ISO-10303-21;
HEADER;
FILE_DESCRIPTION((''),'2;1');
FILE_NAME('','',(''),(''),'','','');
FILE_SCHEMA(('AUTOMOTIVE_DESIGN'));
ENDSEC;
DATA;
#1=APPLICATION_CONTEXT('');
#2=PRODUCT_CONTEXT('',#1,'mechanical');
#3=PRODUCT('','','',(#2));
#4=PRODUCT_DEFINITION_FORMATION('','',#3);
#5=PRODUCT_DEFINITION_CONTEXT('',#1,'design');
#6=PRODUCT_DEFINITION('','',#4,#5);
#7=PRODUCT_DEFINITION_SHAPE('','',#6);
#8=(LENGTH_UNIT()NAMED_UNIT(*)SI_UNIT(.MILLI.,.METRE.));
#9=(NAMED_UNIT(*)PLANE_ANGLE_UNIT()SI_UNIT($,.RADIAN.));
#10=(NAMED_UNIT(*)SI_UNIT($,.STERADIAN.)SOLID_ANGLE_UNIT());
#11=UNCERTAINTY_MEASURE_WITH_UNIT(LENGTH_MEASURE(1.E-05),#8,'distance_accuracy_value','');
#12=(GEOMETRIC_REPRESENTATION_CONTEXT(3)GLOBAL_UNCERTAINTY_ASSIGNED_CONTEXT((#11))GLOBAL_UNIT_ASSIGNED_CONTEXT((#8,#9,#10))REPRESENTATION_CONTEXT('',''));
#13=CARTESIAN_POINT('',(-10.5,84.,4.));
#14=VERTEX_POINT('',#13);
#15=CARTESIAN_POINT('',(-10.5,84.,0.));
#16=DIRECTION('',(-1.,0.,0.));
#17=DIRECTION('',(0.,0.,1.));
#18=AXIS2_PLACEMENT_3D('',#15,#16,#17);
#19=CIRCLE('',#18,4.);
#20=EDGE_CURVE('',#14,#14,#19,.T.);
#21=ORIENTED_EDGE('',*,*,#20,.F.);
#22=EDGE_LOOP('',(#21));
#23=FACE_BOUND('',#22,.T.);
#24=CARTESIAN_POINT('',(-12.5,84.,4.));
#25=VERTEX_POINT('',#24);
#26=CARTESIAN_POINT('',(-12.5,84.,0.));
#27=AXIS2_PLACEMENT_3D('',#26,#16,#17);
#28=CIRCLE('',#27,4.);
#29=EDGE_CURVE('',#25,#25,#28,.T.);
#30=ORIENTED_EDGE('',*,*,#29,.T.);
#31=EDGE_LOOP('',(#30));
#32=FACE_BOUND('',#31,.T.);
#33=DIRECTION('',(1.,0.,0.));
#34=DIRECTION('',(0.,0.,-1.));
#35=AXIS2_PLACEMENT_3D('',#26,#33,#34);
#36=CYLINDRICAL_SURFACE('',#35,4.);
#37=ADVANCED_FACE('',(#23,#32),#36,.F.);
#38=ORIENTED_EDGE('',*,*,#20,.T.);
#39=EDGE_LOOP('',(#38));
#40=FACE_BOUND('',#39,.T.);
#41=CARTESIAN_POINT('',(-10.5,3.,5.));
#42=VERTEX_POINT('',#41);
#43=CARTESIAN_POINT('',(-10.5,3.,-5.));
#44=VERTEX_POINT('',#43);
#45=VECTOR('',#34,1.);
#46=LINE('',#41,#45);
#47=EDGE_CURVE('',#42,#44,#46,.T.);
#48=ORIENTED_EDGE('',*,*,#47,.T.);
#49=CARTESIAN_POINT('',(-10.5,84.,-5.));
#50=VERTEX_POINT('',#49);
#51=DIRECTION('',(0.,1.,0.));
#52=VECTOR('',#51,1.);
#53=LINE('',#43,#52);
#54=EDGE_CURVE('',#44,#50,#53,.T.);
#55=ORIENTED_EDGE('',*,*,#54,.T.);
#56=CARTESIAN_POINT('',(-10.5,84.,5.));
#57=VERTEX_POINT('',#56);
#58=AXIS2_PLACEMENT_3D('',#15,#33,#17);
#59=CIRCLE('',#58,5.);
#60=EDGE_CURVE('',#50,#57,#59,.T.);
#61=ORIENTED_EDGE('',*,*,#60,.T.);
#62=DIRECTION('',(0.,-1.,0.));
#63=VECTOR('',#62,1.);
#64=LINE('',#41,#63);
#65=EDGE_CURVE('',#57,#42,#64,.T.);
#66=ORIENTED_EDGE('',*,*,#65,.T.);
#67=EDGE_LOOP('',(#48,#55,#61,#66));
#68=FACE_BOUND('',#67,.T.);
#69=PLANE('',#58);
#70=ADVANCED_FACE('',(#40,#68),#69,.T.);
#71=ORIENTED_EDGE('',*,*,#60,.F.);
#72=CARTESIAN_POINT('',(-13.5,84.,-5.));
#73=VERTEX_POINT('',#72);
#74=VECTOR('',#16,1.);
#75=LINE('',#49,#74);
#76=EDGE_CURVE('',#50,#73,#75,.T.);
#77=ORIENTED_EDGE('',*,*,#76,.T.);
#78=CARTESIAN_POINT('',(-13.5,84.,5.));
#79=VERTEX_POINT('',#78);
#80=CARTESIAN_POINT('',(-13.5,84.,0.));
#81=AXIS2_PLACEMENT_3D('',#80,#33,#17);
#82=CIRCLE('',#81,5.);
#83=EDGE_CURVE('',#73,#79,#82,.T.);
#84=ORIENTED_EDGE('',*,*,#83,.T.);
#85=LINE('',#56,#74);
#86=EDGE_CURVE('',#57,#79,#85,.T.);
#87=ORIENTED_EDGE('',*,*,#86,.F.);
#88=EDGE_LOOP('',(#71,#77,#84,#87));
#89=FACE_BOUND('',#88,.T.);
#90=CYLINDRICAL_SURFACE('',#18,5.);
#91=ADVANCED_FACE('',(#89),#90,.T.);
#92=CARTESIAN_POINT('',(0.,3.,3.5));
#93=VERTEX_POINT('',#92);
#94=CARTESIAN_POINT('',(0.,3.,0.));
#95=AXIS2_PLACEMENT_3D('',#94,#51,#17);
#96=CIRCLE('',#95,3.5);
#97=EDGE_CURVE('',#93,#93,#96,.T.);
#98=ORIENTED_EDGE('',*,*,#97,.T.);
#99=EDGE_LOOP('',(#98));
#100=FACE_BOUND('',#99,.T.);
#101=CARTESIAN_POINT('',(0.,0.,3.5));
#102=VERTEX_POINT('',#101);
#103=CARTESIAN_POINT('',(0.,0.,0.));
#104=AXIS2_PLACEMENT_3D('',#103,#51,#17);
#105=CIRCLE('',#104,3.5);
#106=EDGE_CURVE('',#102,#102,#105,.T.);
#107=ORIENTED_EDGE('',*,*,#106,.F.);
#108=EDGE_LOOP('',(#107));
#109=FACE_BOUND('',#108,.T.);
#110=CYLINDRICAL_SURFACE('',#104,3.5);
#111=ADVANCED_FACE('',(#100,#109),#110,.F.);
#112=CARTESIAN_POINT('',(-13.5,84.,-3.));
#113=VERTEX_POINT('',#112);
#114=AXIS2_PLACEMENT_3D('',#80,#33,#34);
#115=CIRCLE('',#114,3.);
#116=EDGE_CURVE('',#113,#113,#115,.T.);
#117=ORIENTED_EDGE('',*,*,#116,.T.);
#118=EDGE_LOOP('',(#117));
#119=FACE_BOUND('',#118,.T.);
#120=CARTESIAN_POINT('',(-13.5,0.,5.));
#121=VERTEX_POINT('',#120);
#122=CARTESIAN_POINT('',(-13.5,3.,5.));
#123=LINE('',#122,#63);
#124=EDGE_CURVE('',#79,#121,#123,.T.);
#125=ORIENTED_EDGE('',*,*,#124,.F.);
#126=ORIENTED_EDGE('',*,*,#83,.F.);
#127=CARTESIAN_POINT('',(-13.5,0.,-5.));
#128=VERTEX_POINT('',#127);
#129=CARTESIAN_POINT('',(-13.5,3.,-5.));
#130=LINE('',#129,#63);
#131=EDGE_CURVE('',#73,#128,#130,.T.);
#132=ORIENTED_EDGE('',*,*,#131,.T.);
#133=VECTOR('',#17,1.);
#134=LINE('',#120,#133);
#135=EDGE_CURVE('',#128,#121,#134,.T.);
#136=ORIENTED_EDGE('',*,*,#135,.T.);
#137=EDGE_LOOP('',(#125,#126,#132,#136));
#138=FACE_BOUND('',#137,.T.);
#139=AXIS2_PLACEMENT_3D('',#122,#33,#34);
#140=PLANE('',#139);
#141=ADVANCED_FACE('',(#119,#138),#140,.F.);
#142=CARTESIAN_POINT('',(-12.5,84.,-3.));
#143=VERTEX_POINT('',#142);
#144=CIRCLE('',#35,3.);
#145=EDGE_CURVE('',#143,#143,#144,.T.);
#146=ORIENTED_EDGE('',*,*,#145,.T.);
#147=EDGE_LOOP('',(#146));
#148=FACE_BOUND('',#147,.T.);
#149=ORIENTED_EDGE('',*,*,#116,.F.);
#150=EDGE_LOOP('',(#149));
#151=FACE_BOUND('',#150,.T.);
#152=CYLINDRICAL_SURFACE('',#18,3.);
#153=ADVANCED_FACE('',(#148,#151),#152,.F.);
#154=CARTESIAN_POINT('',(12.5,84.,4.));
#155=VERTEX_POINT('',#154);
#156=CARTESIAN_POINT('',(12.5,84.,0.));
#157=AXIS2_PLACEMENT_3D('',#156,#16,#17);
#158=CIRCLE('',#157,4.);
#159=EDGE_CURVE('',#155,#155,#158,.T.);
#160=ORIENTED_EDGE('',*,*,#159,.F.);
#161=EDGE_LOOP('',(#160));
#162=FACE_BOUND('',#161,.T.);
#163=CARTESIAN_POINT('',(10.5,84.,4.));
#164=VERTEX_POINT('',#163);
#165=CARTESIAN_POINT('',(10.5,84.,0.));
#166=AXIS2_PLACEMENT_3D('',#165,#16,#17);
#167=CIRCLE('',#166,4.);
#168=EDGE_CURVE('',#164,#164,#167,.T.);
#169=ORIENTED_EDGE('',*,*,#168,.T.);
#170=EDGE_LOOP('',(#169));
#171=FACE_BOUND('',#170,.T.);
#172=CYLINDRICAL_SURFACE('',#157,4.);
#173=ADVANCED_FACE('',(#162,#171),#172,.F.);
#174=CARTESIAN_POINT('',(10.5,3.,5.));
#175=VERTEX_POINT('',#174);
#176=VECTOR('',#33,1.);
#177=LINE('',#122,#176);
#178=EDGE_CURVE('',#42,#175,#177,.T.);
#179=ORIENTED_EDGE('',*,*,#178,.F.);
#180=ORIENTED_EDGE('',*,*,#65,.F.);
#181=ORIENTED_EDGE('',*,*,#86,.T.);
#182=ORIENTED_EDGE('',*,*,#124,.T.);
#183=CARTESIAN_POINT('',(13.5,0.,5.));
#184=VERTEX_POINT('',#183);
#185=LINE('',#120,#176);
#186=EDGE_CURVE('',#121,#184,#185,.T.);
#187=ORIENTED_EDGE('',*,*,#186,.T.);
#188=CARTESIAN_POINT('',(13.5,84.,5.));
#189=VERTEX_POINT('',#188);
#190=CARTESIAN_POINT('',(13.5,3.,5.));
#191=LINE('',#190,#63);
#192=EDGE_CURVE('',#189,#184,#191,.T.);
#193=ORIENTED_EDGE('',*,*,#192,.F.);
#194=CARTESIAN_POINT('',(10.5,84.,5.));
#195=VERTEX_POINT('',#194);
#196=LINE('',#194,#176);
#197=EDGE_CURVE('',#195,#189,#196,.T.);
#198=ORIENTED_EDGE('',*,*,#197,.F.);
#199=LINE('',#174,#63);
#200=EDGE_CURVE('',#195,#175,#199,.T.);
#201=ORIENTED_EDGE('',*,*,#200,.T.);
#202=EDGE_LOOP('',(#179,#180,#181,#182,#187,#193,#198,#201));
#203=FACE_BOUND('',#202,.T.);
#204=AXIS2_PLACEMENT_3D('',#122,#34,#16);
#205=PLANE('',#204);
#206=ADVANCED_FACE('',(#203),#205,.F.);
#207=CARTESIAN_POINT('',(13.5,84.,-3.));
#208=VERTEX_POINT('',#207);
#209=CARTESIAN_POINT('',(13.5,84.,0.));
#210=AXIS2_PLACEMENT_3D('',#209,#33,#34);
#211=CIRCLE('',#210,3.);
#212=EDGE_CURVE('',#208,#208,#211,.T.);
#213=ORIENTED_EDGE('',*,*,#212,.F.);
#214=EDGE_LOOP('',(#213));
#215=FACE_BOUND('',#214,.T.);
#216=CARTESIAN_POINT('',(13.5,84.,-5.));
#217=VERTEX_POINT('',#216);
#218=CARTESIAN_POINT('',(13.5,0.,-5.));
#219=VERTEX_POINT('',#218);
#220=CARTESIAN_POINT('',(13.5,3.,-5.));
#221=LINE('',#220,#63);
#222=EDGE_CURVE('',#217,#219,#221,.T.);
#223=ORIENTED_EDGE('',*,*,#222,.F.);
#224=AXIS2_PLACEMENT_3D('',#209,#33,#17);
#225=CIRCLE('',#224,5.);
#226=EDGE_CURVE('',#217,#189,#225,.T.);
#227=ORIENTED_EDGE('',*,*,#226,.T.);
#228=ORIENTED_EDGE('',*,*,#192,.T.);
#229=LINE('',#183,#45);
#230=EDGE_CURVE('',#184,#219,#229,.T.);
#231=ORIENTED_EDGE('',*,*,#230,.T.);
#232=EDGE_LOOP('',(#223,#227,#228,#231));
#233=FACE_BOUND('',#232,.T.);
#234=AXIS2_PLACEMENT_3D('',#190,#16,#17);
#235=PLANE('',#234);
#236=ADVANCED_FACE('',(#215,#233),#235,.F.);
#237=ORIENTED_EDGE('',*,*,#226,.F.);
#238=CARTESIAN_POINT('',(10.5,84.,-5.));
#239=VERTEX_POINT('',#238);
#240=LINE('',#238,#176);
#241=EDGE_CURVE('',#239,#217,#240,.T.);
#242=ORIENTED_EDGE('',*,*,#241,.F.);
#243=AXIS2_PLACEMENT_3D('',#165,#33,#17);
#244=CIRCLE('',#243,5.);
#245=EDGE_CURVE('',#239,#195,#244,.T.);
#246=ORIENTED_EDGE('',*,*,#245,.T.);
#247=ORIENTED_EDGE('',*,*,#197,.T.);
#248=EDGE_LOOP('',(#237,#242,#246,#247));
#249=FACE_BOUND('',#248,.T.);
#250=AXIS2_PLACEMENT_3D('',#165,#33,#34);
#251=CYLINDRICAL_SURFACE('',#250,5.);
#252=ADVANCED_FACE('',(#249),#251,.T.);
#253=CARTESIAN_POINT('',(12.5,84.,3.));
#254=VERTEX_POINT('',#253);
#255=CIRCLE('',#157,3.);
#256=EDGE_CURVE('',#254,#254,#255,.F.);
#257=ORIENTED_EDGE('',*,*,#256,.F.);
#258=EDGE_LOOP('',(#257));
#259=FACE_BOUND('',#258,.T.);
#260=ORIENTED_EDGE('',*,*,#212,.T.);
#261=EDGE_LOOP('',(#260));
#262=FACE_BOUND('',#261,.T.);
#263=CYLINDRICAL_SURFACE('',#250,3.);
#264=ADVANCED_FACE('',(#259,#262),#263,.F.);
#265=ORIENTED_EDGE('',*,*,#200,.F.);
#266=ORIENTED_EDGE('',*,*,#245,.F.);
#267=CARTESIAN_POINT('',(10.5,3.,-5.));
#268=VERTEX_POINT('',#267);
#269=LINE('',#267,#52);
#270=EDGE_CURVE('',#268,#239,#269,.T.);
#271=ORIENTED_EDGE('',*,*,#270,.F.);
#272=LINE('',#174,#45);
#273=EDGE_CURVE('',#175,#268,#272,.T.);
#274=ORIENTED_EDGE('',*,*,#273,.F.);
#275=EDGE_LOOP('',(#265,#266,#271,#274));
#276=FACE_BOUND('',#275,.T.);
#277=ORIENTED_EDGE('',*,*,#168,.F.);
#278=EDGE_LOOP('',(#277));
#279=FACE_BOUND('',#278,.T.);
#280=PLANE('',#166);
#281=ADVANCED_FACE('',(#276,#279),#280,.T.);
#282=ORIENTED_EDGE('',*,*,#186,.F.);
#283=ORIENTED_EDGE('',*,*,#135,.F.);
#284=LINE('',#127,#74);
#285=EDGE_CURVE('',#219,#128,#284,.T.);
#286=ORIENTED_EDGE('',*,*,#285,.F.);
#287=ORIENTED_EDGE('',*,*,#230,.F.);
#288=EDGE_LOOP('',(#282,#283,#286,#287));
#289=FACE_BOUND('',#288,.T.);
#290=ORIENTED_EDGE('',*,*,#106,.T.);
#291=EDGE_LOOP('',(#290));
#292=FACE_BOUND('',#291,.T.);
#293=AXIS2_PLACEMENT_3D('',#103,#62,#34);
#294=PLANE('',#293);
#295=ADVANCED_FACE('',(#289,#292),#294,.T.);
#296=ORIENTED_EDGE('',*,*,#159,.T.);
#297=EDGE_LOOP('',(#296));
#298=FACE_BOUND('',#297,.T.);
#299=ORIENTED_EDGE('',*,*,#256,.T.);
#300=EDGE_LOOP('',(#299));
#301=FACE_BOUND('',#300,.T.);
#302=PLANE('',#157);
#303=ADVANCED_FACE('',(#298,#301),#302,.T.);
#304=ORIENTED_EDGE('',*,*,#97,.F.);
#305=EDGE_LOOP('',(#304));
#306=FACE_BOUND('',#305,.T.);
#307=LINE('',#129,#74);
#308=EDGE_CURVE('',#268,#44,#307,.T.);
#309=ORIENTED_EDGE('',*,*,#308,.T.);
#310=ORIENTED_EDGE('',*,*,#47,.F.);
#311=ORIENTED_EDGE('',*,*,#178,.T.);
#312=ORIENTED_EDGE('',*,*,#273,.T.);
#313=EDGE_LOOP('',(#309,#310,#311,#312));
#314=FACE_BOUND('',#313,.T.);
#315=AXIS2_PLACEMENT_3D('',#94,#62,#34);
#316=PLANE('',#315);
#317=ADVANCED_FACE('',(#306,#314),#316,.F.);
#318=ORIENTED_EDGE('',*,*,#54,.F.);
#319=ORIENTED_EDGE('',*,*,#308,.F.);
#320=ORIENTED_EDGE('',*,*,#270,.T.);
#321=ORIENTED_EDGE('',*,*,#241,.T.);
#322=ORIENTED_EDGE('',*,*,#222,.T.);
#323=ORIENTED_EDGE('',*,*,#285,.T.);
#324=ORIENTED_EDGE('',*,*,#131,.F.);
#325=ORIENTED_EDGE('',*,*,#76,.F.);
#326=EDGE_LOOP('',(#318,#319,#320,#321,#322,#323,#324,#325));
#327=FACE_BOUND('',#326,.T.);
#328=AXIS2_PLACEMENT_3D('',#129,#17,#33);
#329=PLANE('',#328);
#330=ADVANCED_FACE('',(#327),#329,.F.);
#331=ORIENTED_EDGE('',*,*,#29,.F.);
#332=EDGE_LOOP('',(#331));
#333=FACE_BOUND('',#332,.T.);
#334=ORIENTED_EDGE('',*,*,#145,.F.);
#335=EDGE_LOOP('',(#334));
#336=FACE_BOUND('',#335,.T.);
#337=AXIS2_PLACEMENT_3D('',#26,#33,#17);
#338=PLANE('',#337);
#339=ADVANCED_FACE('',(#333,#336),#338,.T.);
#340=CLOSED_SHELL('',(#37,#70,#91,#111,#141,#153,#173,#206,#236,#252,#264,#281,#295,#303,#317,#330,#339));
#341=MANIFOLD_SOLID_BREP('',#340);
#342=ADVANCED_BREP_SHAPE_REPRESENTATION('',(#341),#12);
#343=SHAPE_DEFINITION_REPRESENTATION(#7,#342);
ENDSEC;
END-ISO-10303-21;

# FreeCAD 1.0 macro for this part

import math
import FreeCAD as App
import Part
import Sketcher

V = App.Vector

doc = App.newDocument("Part")
body = doc.addObject("PartDesign::Body", "Body")

# Sketch on XZ plane
sketch1 = body.newObject("Sketcher::SketchObject", "Sketch")
sketch1.AttachmentSupport = (doc.getObject("XZ_Plane"), [""])
sketch1.MapMode = "FlatFace"
sketch1.addGeometry(Part.LineSegment(V(-13.5, -5, 0), V(-13.5, 5, 0)), False)
sketch1.addGeometry(Part.LineSegment(V(-13.5, 5, 0), V(13.5, 5, 0)), False)
sketch1.addGeometry(Part.LineSegment(V(13.5, 5, 0), V(13.5, -5, 0)), False)
sketch1.addGeometry(Part.LineSegment(V(13.5, -5, 0), V(-13.5, -5, 0)), False)
sketch1.addConstraint(Sketcher.Constraint("Coincident", 0, 2, 1, 1))
sketch1.addConstraint(Sketcher.Constraint("Coincident", 1, 2, 2, 1))
sketch1.addConstraint(Sketcher.Constraint("Coincident", 2, 2, 3, 1))
sketch1.addConstraint(Sketcher.Constraint("Coincident", 3, 2, 0, 1))
sketch1.addConstraint(Sketcher.Constraint("Vertical", 0))
sketch1.addConstraint(Sketcher.Constraint("Horizontal", 1))
sketch1.addConstraint(Sketcher.Constraint("Vertical", 2))
sketch1.addConstraint(Sketcher.Constraint("Horizontal", 3))
sketch1.addConstraint(Sketcher.Constraint("Symmetric", 0, 2, 2, 2, -1, 1))
sketch1.addConstraint(Sketcher.Constraint("DistanceX", 1, 1, 1, 2, 27.0))
sketch1.addConstraint(Sketcher.Constraint("DistanceY", 0, 1, 0, 2, 10.0))
pad1 = body.newObject("PartDesign::Pad", "Pad")
pad1.Profile = sketch1
pad1.Length = 3
pad1.Reversed = True

# Sketch on YZ plane
sketch2 = body.newObject("Sketcher::SketchObject", "Sketch001")
sketch2.AttachmentSupport = (doc.getObject("YZ_Plane"), [""])
sketch2.MapMode = "FlatFace"
sketch2.AttachmentOffset = App.Placement(V(0, 0, 13.5), App.Rotation())
sketch2.addGeometry(Part.LineSegment(V(3, 5, 0), V(3, -5, 0)), False)
sketch2.addGeometry(Part.LineSegment(V(3, -5, 0), V(84, -5, 0)), False)
sketch2.addGeometry(Part.ArcOfCircle(Part.Circle(V(84, 0, 0), V(0, 0, 1), 5), math.radians(-90), math.radians(90)), False)
sketch2.addGeometry(Part.LineSegment(V(84, 5, 0), V(3, 5, 0)), False)
sketch2.addGeometry(Part.Circle(V(84, 0, 0), V(0, 0, 1), 3), False)
sketch2.addConstraint(Sketcher.Constraint("Coincident", 0, 2, 1, 1))
sketch2.addConstraint(Sketcher.Constraint("Tangent", 1, 2, 2, 1))
sketch2.addConstraint(Sketcher.Constraint("Tangent", 2, 2, 3, 1))
sketch2.addConstraint(Sketcher.Constraint("Coincident", 3, 2, 0, 1))
sketch2.addConstraint(Sketcher.Constraint("Vertical", 0))
sketch2.addConstraint(Sketcher.Constraint("Horizontal", 1))
sketch2.addConstraint(Sketcher.Constraint("Horizontal", 3))
sketch2.addConstraint(Sketcher.Constraint("Coincident", 4, 3, 2, 3))
sketch2.addConstraint(Sketcher.Constraint("PointOnObject", 2, 3, -1))
sketch2.addConstraint(Sketcher.Constraint("Diameter", 4, 6.0))
sketch2.addConstraint(Sketcher.Constraint("Radius", 2, 5.0))
sketch2.addConstraint(Sketcher.Constraint("DistanceX", 1, 1, 1, 2, 81.0))
sketch2.addConstraint(Sketcher.Constraint("DistanceX", -1, 1, 2, 3, 84.0))
pad2 = body.newObject("PartDesign::Pad", "Pad001")
pad2.Profile = sketch2
pad2.Length = 3
pad2.Reversed = True

# Sketch on XZ plane
sketch3 = body.newObject("Sketcher::SketchObject", "Sketch002")
sketch3.AttachmentSupport = (doc.getObject("XZ_Plane"), [""])
sketch3.MapMode = "FlatFace"
sketch3.AttachmentOffset = App.Placement(V(0, 0, -3), App.Rotation())
sketch3.addGeometry(Part.Circle(V(0, 0, 0), V(0, 0, 1), 1.5), False)
sketch3.addConstraint(Sketcher.Constraint("Coincident", 0, 3, -1, 1))
sketch3.addConstraint(Sketcher.Constraint("Diameter", 0, 3.0))
pocket1 = body.newObject("PartDesign::Pocket", "Pocket")
pocket1.Profile = sketch3
pocket1.Length = 3
pocket1.Reversed = True

# Sketch on YZ plane
sketch4 = body.newObject("Sketcher::SketchObject", "Sketch003")
sketch4.AttachmentSupport = (doc.getObject("YZ_Plane"), [""])
sketch4.MapMode = "FlatFace"
sketch4.AttachmentOffset = App.Placement(V(0, 0, 10.5), App.Rotation())
sketch4.addGeometry(Part.Circle(V(84, 0, 0), V(0, 0, 1), 4), False)
sketch4.addConstraint(Sketcher.Constraint("PointOnObject", 0, 3, -1))
sketch4.addConstraint(Sketcher.Constraint("Diameter", 0, 8.0))
sketch4.addConstraint(Sketcher.Constraint("DistanceX", -1, 1, 0, 3, 84.0))
pocket2 = body.newObject("PartDesign::Pocket", "Pocket001")
pocket2.Profile = sketch4
pocket2.Length = 2
pocket2.Reversed = True
doc.recompute()

mirrored = body.newObject("PartDesign::Mirrored", "Mirrored")
mirrored.Originals = [pad1, pad2, pocket2]
mirrored.MirrorPlane = (doc.getObject("YZ_Plane"), [""])
body.Tip = mirrored

# Sketch on XZ plane
sketch5 = body.newObject("Sketcher::SketchObject", "Sketch004")
sketch5.AttachmentSupport = (doc.getObject("XZ_Plane"), [""])
sketch5.MapMode = "FlatFace"
sketch5.AttachmentOffset = App.Placement(V(0, 0, -3), App.Rotation())
sketch5.addGeometry(Part.Circle(V(0, 0, 0), V(0, 0, 1), 3.5), False)
sketch5.addConstraint(Sketcher.Constraint("Coincident", 0, 3, -1, 1))
sketch5.addConstraint(Sketcher.Constraint("Diameter", 0, 7.0))
pocket3 = body.newObject("PartDesign::Pocket", "Pocket002")
pocket3.Profile = sketch5
pocket3.Type = "ThroughAll"
pocket3.Reversed = True

doc.recompute()
